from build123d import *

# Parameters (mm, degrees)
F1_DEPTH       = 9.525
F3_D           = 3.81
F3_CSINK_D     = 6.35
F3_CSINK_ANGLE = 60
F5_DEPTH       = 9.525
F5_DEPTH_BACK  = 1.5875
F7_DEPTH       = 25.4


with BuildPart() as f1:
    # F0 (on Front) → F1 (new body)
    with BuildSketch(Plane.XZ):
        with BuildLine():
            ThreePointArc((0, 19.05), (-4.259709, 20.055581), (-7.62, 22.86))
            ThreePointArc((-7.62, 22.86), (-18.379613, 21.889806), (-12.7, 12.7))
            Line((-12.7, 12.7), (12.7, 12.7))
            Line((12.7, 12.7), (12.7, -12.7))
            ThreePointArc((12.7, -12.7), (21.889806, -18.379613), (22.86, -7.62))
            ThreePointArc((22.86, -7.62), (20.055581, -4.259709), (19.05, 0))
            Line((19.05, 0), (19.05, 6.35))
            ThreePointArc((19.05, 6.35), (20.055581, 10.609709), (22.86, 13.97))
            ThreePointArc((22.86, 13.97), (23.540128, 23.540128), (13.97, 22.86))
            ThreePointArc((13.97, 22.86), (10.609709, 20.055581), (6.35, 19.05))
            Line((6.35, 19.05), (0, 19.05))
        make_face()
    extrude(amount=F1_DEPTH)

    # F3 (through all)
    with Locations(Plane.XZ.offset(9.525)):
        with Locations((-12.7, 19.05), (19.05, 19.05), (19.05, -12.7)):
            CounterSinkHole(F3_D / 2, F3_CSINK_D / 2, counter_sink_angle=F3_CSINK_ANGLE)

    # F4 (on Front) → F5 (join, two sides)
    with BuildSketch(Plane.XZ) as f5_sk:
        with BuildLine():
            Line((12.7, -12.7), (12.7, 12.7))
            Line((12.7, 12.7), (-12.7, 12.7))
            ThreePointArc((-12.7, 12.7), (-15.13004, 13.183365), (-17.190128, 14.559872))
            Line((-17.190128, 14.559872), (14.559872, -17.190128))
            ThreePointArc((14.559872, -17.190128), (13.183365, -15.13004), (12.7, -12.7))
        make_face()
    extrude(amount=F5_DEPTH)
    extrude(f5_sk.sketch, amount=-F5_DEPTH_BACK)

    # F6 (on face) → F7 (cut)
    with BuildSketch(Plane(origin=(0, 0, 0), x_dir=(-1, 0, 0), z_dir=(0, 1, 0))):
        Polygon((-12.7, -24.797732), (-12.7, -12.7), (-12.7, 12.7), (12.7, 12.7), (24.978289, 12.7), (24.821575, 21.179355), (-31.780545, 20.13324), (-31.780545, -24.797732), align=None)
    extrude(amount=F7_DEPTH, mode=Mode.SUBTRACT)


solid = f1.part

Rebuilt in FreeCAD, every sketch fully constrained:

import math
import FreeCAD as App
import Part
import Sketcher
from FreeCAD import Vector
Q = App.Units.Quantity


def add_polygon(sketch, points):
    """Adds a closed chain of lines whose ends are joined by coincident constraints."""
    first, n = sketch.GeometryCount, len(points)
    for a, b in zip(points, points[1:] + points[:1]):
        sketch.addGeometry(Part.LineSegment(App.Vector(*a, 0), App.Vector(*b, 0)), False)
    for i in range(n):
        sketch.addConstraint(Sketcher.Constraint("Coincident", first + i, 2, first + (i + 1) % n, 1))

doc = App.newDocument("Part")
body = doc.addObject("PartDesign::Body", "Body")

# Sketch on XZ plane
sketch1 = body.newObject("Sketcher::SketchObject", "Sketch")
sketch1.AttachmentSupport = (doc.getObject("XZ_Plane"), [""])
sketch1.MapMode = "FlatFace"
sketch1.addGeometry([
    Part.ArcOfCircle(Part.Circle(Vector(0, 29, 0), Vector(0, 0, 1), 10), math.radians(-143), math.radians(-90)),  # 0
    Part.ArcOfCircle(Part.Circle(Vector(-13, 19, 0), Vector(0, 0, 1), 6), math.radians(37), math.radians(270)),  # 1
    Part.LineSegment(Vector(-13, 13, 0), Vector(13, 13, 0)),  # 2
    Part.LineSegment(Vector(13, 13, 0), Vector(13, -13, 0)),  # 3
    Part.ArcOfCircle(Part.Circle(Vector(19, -13, 0), Vector(0, 0, 1), 6), math.radians(180), math.radians(413)),  # 4
    Part.ArcOfCircle(Part.Circle(Vector(29, 0, 0), Vector(0, 0, 1), 10), math.radians(-180), math.radians(-127)),  # 5
    Part.LineSegment(Vector(19, 0, 0), Vector(19, 6, 0)),  # 6
    Part.ArcOfCircle(Part.Circle(Vector(29, 6, 0), Vector(0, 0, 1), 10), math.radians(127), math.radians(180)),  # 7
    Part.ArcOfCircle(Part.Circle(Vector(19, 19, 0), Vector(0, 0, 1), 6), math.radians(-53), math.radians(143)),  # 8
    Part.ArcOfCircle(Part.Circle(Vector(6, 29, 0), Vector(0, 0, 1), 10), math.radians(-90), math.radians(-37)),  # 9
    Part.LineSegment(Vector(6, 19, 0), Vector(0, 19, 0)),  # 10
], False)
sketch1.addConstraint([
    Sketcher.Constraint("Tangent", 0, 1, 1, 1),
    Sketcher.Constraint("Tangent", 1, 2, 2, 1),
    Sketcher.Constraint("Coincident", 2, 2, 3, 1),
    Sketcher.Constraint("Tangent", 3, 2, 4, 1),
    Sketcher.Constraint("Tangent", 4, 2, 5, 2),
    Sketcher.Constraint("Tangent", 5, 1, 6, 1),
    Sketcher.Constraint("Tangent", 6, 2, 7, 2),
    Sketcher.Constraint("Tangent", 7, 1, 8, 1),
    Sketcher.Constraint("Tangent", 8, 2, 9, 2),
    Sketcher.Constraint("Tangent", 9, 1, 10, 1),
    Sketcher.Constraint("Tangent", 10, 2, 0, 2),
    Sketcher.Constraint("Horizontal", 2),
    Sketcher.Constraint("Vertical", 3),
    Sketcher.Constraint("Vertical", 6),
    Sketcher.Constraint("Horizontal", 10),
    Sketcher.Constraint("Equal", 1, 4),
    Sketcher.Constraint("Equal", 0, 5),
    Sketcher.Constraint("Equal", 5, 7),
    Sketcher.Constraint("Equal", 4, 8),
    Sketcher.Constraint("Equal", 7, 9),
    Sketcher.Constraint("Symmetric", 1, 2, 3, 2, -1, 1),
    Sketcher.Constraint("PointOnObject", 0, 3, -2),
    Sketcher.Constraint("PointOnObject", 5, 3, -1),
    Sketcher.Constraint("Horizontal", 1, 3, 8, 3),
    Sketcher.Constraint("Horizontal", 8, 3, 9, 1),
    Sketcher.Constraint("Vertical", 4, 3, 8, 3),
    Sketcher.Constraint("Vertical", 8, 3, 5, 1),
    Sketcher.Constraint("DistanceX", 2, 1, 2, 2, Q("1 in")),
    Sketcher.Constraint("Radius", 1, Q("0.25 in")),
])
pad1 = body.newObject("PartDesign::Pad", "Pad")
pad1.Profile = sketch1
pad1.Length = Q("0.375 in")

# Sketch on XZ plane
sketch2 = body.newObject("Sketcher::SketchObject", "Sketch001")
sketch2.AttachmentSupport = (doc.getObject("XZ_Plane"), [""])
sketch2.MapMode = "FlatFace"
sketch2.AttachmentOffset = App.Placement(Vector(0, 0, 0.375 * 25.4), App.Rotation())
sketch2.addGeometry([
    Part.Circle(Vector(-12.7, 19.1, 0), Vector(0, 0, 1), 1.9),
    Part.Circle(Vector(19.1, 19.1, 0), Vector(0, 0, 1), 1.9),
    Part.Circle(Vector(19.1, -12.7, 0), Vector(0, 0, 1), 1.9),
], False)
sketch2.addConstraint([
    Sketcher.Constraint("Equal", 0, 1),
    Sketcher.Constraint("Equal", 1, 2),
    Sketcher.Constraint("Horizontal", 0, 3, 1, 3),
    Sketcher.Constraint("Vertical", 1, 3, 2, 3),
    Sketcher.Constraint("Diameter", 0, Q("0.15 in")),
    Sketcher.Constraint("DistanceX", 0, 3, -1, 1, Q("0.5 in")),
    Sketcher.Constraint("DistanceY", 2, 3, -1, 1, Q("0.5 in")),
    Sketcher.Constraint("DistanceY", -1, 1, 0, 3, Q("0.75 in")),
    Sketcher.Constraint("DistanceX", -1, 1, 1, 3, Q("0.75 in")),
])
doc.recompute()
hole = body.newObject("PartDesign::Hole", "Hole")
hole.Profile = sketch2
hole.ThreadType = "None"
hole.Diameter = Q("0.15 in")
hole.DepthType = "ThroughAll"
hole.HoleCutType = "Countersink"
hole.HoleCutDiameter = Q("0.25 in")
hole.HoleCutCountersinkAngle = 60

# Sketch on XZ plane
sketch3 = body.newObject("Sketcher::SketchObject", "Sketch002")
sketch3.AttachmentSupport = (doc.getObject("XZ_Plane"), [""])
sketch3.MapMode = "FlatFace"
sketch3.addGeometry([
    Part.LineSegment(Vector(12.7, -12.7, 0), Vector(12.7, 12.7, 0)),  # 0
    Part.LineSegment(Vector(12.7, 12.7, 0), Vector(-12.7, 12.7, 0)),  # 1
    Part.ArcOfCircle(Part.Circle(Vector(-12.7, 19, 0), Vector(0, 0, 1), 6.3), math.radians(-135), math.radians(-90)),  # 2
    Part.LineSegment(Vector(-17.2, 14.6, 0), Vector(14.6, -17.2, 0)),  # 3
    Part.ArcOfCircle(Part.Circle(Vector(19, -12.7, 0), Vector(0, 0, 1), 6.3), math.radians(180), math.radians(225)),  # 4
], False)
sketch3.addConstraint([
    Sketcher.Constraint("Coincident", 0, 2, 1, 1),
    Sketcher.Constraint("Tangent", 1, 2, 2, 2),
    Sketcher.Constraint("Tangent", 2, 1, 3, 1),
    Sketcher.Constraint("Tangent", 3, 2, 4, 2),
    Sketcher.Constraint("Tangent", 4, 1, 0, 1),
    Sketcher.Constraint("Vertical", 0),
    Sketcher.Constraint("Horizontal", 1),
    Sketcher.Constraint("Equal", 2, 4),
    Sketcher.Constraint("Symmetric", 1, 2, 4, 1, -1, 1),
    Sketcher.Constraint("Equal", 1, 0),
    Sketcher.Constraint("DistanceX", 1, 2, 1, 1, Q("1 in")),
    Sketcher.Constraint("Radius", 2, Q("0.25 in")),
])
pad2 = body.newObject("PartDesign::Pad", "Pad001")
pad2.Profile = sketch3
pad2.Type = "TwoLengths"
pad2.Length = Q("0.375 in")
pad2.Length2 = Q("0.0625 in")

# Sketch on XZ plane
sketch4 = body.newObject("Sketcher::SketchObject", "Sketch003")
sketch4.AttachmentSupport = (doc.getObject("XZ_Plane"), [""])
sketch4.MapMode = "FlatFace"
add_polygon(sketch4, [(13, -25), (13, 13), (-25, 13), (-25, 21), (32, 20), (32, -25)])  # lines 0-5
sketch4.addConstraint([
    Sketcher.Constraint("Vertical", 0),
    Sketcher.Constraint("Horizontal", 1),
    Sketcher.Constraint("Vertical", 4),
    Sketcher.Constraint("Horizontal", 5),
    Sketcher.Constraint("Perpendicular", 2, 3),
    Sketcher.Constraint("DistanceX", -1, 1, 0, 2, Q("0.5 in")),
    Sketcher.Constraint("DistanceY", -1, 1, 0, 2, Q("0.5 in")),
    Sketcher.Constraint("DistanceX", 1, 2, 1, 1, 37.678289),
    Sketcher.Constraint("DistanceY", 4, 2, 4, 1, 44.930972),
    Sketcher.Constraint("DistanceX", 5, 2, 5, 1, 19.080545),
    Sketcher.Constraint("DistanceY", 0, 1, 0, 2, 37.497732),
    Sketcher.Constraint("DistanceX", 2, 2, 3, 2, 56.60212),
])
pocket1 = body.newObject("PartDesign::Pocket", "Pocket")
pocket1.Profile = sketch4
pocket1.Length = Q("1 in")

doc.recompute()
